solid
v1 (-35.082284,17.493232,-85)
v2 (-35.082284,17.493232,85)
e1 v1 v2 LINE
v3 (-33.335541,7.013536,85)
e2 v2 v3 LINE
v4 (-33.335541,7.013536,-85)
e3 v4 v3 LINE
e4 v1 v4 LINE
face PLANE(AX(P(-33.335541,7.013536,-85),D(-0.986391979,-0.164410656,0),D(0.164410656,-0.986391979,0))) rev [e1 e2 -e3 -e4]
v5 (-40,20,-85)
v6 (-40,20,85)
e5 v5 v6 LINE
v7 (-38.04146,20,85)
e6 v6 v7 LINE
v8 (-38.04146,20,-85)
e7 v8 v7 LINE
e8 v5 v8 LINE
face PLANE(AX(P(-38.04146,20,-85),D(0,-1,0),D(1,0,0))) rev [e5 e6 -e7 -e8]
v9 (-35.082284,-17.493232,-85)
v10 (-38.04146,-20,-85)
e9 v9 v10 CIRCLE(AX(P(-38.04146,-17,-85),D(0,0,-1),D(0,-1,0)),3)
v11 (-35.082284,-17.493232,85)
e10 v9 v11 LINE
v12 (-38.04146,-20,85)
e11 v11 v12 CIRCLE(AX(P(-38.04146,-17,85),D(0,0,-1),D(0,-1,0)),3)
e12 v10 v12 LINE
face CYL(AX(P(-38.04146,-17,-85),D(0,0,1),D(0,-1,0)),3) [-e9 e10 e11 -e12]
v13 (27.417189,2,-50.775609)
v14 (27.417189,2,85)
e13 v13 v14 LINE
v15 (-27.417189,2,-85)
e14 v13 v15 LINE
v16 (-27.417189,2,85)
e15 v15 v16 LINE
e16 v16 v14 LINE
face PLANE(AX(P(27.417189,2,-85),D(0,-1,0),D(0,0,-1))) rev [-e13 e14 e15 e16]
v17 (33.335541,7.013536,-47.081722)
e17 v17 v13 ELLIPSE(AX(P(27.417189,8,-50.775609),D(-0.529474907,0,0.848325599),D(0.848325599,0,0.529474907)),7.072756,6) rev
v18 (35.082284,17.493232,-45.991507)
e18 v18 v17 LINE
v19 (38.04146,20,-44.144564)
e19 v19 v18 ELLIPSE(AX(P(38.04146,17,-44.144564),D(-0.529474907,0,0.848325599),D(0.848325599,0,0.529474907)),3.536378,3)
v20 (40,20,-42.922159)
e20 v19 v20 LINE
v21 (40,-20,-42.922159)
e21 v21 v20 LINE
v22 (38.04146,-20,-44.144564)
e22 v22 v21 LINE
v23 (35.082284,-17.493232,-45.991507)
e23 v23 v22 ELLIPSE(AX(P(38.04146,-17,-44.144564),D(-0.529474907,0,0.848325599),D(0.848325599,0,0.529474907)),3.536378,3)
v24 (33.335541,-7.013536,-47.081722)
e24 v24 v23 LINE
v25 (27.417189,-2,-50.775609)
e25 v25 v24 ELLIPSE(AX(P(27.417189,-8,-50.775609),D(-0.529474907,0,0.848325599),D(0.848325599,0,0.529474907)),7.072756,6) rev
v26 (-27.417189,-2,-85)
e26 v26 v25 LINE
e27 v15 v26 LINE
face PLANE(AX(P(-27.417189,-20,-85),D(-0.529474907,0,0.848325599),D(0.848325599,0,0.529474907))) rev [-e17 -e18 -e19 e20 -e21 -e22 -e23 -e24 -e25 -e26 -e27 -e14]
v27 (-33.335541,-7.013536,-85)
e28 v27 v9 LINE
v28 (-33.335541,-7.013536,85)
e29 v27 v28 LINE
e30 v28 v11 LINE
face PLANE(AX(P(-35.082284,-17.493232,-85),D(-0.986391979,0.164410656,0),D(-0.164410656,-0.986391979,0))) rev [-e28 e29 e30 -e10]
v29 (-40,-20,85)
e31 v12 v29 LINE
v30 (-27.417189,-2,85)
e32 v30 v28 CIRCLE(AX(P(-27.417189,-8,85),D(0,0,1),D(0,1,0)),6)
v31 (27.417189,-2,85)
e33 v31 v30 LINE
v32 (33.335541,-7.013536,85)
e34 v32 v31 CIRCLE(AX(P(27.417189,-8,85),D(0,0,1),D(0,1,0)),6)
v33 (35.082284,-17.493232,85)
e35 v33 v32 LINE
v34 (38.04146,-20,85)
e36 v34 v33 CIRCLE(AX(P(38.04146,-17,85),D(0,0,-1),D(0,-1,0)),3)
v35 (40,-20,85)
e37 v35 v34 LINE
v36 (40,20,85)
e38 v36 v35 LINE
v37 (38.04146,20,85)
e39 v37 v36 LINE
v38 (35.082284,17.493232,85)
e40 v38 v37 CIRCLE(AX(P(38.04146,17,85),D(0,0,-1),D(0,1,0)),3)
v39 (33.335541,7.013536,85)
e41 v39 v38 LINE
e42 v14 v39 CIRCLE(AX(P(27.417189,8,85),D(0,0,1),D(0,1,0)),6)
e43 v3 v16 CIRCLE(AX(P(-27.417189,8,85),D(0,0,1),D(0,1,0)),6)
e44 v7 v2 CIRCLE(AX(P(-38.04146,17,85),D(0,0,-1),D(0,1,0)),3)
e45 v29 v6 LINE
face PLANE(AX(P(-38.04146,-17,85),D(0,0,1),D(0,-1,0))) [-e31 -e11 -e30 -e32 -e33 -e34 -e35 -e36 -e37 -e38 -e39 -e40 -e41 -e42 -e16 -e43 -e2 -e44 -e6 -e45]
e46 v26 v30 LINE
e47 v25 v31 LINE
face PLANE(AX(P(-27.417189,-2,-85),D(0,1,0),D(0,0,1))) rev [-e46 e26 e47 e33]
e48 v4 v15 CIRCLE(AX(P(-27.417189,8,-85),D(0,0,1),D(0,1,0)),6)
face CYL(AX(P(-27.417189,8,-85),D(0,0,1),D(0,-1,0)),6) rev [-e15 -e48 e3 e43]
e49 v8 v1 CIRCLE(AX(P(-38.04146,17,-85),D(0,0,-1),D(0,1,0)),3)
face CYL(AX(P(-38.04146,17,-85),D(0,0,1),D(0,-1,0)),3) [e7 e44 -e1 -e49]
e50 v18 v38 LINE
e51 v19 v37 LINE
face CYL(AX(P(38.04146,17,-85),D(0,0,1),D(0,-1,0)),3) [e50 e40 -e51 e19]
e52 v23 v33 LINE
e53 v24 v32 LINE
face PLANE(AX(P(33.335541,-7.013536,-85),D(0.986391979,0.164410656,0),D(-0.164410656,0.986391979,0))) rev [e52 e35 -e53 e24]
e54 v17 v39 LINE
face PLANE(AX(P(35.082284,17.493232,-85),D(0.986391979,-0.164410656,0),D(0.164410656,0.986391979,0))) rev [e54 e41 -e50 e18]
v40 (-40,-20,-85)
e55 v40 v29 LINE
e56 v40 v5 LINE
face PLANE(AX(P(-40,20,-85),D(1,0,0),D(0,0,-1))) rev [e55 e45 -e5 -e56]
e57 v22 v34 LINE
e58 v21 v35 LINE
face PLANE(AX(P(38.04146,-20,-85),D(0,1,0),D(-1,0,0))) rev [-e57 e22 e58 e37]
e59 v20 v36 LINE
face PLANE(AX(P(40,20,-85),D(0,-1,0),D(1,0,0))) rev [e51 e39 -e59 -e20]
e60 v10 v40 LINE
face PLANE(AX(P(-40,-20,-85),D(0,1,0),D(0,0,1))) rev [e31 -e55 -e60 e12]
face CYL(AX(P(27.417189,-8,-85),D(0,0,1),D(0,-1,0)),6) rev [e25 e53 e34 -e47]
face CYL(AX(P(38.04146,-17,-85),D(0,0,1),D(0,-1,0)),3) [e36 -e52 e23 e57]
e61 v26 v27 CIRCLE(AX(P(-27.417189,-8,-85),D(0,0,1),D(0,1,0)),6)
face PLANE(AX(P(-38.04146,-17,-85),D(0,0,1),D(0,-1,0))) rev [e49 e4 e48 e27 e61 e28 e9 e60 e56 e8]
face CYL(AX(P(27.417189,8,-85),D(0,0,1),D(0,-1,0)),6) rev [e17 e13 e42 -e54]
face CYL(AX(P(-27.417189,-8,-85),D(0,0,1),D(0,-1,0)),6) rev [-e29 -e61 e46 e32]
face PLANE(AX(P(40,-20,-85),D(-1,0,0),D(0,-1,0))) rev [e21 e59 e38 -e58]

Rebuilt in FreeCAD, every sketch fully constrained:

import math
import FreeCAD as App
import Part
import Sketcher
from FreeCAD import Vector
Q = App.Units.Quantity

doc = App.newDocument("Part")
params = doc.addObject("Spreadsheet::Sheet", "Params")
for row, (alias, value) in enumerate([
    ("sketch1_radius", "3 mm"),
    ("sketch1_radius2", "6 mm"),
    ("sketch1_height", "40 mm"),
    ("pad1_length", "170 mm"),
], start=1):
    params.set(f"A{row}", alias)
    params.set(f"B{row}", "=" + value)
    params.setAlias(f"B{row}", alias)

body = doc.addObject("PartDesign::Body", "Body")

# Sketch on XY plane
sketch1 = doc.addObject("Sketcher::SketchObject", "Sketch")
body.addObject(sketch1)
sketch1.AttachmentSupport = (doc.XY_Plane, [""])
sketch1.MapMode = "FlatFace"
sketch1.AttachmentOffset = App.Placement(Vector(0, 0, 85), App.Rotation())
sketch1.addGeometry([
    Part.LineSegment(Vector(-38, -20, 0), Vector(-40, -20, 0)),  # 0
    Part.LineSegment(Vector(-40, -20, 0), Vector(-40, 20, 0)),  # 1
    Part.LineSegment(Vector(-40, 20, 0), Vector(-38, 20, 0)),  # 2
    Part.ArcOfCircle(Part.Circle(Vector(-38, 17, 0), Vector(0, 0, 1), 3), math.radians(9), math.radians(90)),  # 3
    Part.LineSegment(Vector(-35.1, 17.5, 0), Vector(-33.3, 7, 0)),  # 4
    Part.ArcOfCircle(Part.Circle(Vector(-27.4, 8, 0), Vector(0, 0, 1), 6), math.radians(-171), math.radians(-90)),  # 5
    Part.LineSegment(Vector(-27.4, 2, 0), Vector(27.4, 2, 0)),  # 6
    Part.ArcOfCircle(Part.Circle(Vector(27.4, 8, 0), Vector(0, 0, 1), 6), math.radians(-90), math.radians(-9)),  # 7
    Part.LineSegment(Vector(33.3, 7, 0), Vector(35.1, 17.5, 0)),  # 8
    Part.ArcOfCircle(Part.Circle(Vector(38, 17, 0), Vector(0, 0, 1), 3), math.radians(90), math.radians(171)),  # 9
    Part.LineSegment(Vector(38, 20, 0), Vector(40, 20, 0)),  # 10
    Part.LineSegment(Vector(40, 20, 0), Vector(40, -20, 0)),  # 11
    Part.LineSegment(Vector(40, -20, 0), Vector(38, -20, 0)),  # 12
    Part.ArcOfCircle(Part.Circle(Vector(38, -17, 0), Vector(0, 0, 1), 3), math.radians(-171), math.radians(-90)),  # 13
    Part.LineSegment(Vector(35.1, -17.5, 0), Vector(33.3, -7, 0)),  # 14
    Part.ArcOfCircle(Part.Circle(Vector(27.4, -8, 0), Vector(0, 0, 1), 6), math.radians(9), math.radians(90)),  # 15
    Part.LineSegment(Vector(27.4, -2, 0), Vector(-27.4, -2, 0)),  # 16
    Part.ArcOfCircle(Part.Circle(Vector(-27.4, -8, 0), Vector(0, 0, 1), 6), math.radians(90), math.radians(171)),  # 17
    Part.LineSegment(Vector(-33.3, -7, 0), Vector(-35.1, -17.5, 0)),  # 18
    Part.ArcOfCircle(Part.Circle(Vector(-38, -17, 0), Vector(0, 0, 1), 3), math.radians(-90), math.radians(-9)),  # 19
], False)
sketch1.addConstraint([
    Sketcher.Constraint("Coincident", 0, 2, 1, 1),
    Sketcher.Constraint("Coincident", 1, 2, 2, 1),
    Sketcher.Constraint("Tangent", 2, 2, 3, 2),
    Sketcher.Constraint("Tangent", 3, 1, 4, 1),
    Sketcher.Constraint("Tangent", 4, 2, 5, 1),
    Sketcher.Constraint("Tangent", 5, 2, 6, 1),
    Sketcher.Constraint("Tangent", 6, 2, 7, 1),
    Sketcher.Constraint("Tangent", 7, 2, 8, 1),
    Sketcher.Constraint("Tangent", 8, 2, 9, 2),
    Sketcher.Constraint("Tangent", 9, 1, 10, 1),
    Sketcher.Constraint("Coincident", 10, 2, 11, 1),
    Sketcher.Constraint("Coincident", 11, 2, 12, 1),
    Sketcher.Constraint("Tangent", 12, 2, 13, 2),
    Sketcher.Constraint("Tangent", 13, 1, 14, 1),
    Sketcher.Constraint("Tangent", 14, 2, 15, 1),
    Sketcher.Constraint("Tangent", 15, 2, 16, 1),
    Sketcher.Constraint("Tangent", 16, 2, 17, 1),
    Sketcher.Constraint("Tangent", 17, 2, 18, 1),
    Sketcher.Constraint("Tangent", 18, 2, 19, 2),
    Sketcher.Constraint("Tangent", 19, 1, 0, 1),
    Sketcher.Constraint("Horizontal", 0),
    Sketcher.Constraint("Vertical", 1),
    Sketcher.Constraint("Horizontal", 2),
    Sketcher.Constraint("Horizontal", 6),
    Sketcher.Constraint("Horizontal", 10),
    Sketcher.Constraint("Vertical", 11),
    Sketcher.Constraint("Horizontal", 12),
    Sketcher.Constraint("Horizontal", 16),
    Sketcher.Constraint("Equal", 5, 7),
    Sketcher.Constraint("Equal", 3, 9),
    Sketcher.Constraint("Equal", 9, 13),
    Sketcher.Constraint("Equal", 7, 15),
    Sketcher.Constraint("Equal", 15, 17),
    Sketcher.Constraint("Equal", 13, 19),
    Sketcher.Constraint("Symmetric", 3, 3, 13, 3, -1, 1),
    Sketcher.Constraint("Symmetric", 5, 3, 15, 3, -1, 1),
    Sketcher.Constraint("Symmetric", 9, 3, 19, 3, -1, 1),
    Sketcher.Constraint("Symmetric", 3, 3, 9, 3, -2),
    Sketcher.Constraint("Parallel", 8, 18),
    Sketcher.Constraint("Horizontal", 4, 2, 7, 2),
    Sketcher.Constraint("Equal", 2, 10),
    Sketcher.Constraint("Radius", 3, 3.0),
    Sketcher.Constraint("Radius", 5, 6.0),
    Sketcher.Constraint("DistanceY", 1, 1, 1, 2, 40.0),
    Sketcher.Constraint("DistanceY", -1, 1, 5, 3, 8.0),
    Sketcher.Constraint("DistanceX", 0, 2, -1, 1, 40.0),
    Sketcher.Constraint("DistanceX", 0, 2, 0, 1, 1.95854),
    Sketcher.Constraint("DistanceX", 6, 1, 6, 2, 54.834378),
])
sketch1.setExpression("Constraints[41]", "Params.sketch1_radius")
sketch1.setExpression("Constraints[42]", "Params.sketch1_radius2")
sketch1.setExpression("Constraints[43]", "Params.sketch1_height")
pad1 = doc.addObject("PartDesign::Pad", "Pad")
body.addObject(pad1)
pad1.Profile = sketch1
pad1.setExpression("Length", "Params.pad1_length")
pad1.Reversed = True

# Sketch on XZ plane
sketch2 = doc.addObject("Sketcher::SketchObject", "Sketch001")
body.addObject(sketch2)
sketch2.AttachmentSupport = (doc.XZ_Plane, [""])
sketch2.MapMode = "FlatFace"
sketch2.addGeometry([
    Part.LineSegment(Vector(-27, -85, 0), Vector(71, -23, 0)),
    Part.LineSegment(Vector(71, -23, 0), Vector(71, -106, 0)),
    Part.LineSegment(Vector(71, -106, 0), Vector(-27, -106, 0)),
    Part.LineSegment(Vector(-27, -106, 0), Vector(-27, -85, 0)),
], False)
sketch2.addConstraint([
    Sketcher.Constraint("Coincident", 0, 2, 1, 1),
    Sketcher.Constraint("Coincident", 1, 2, 2, 1),
    Sketcher.Constraint("Coincident", 2, 2, 3, 1),
    Sketcher.Constraint("Coincident", 3, 2, 0, 1),
    Sketcher.Constraint("Vertical", 1),
    Sketcher.Constraint("Horizontal", 2),
    Sketcher.Constraint("Vertical", 3),
    Sketcher.Constraint("DistanceY", 3, 2, -1, 1, 85.0),
    Sketcher.Constraint("Angle", 0, Q("31.969983 deg")),
    Sketcher.Constraint("DistanceX", 2, 2, 2, 1, 98.688349),
    Sketcher.Constraint("DistanceY", 1, 2, 1, 1, 82.357894),
    Sketcher.Constraint("DistanceX", -1, 1, 0, 2, 71.27116),
])
pocket1 = doc.addObject("PartDesign::Pocket", "Pocket")
body.addObject(pocket1)
pocket1.Profile = sketch2
pocket1.Type = "ThroughAll"
pocket1.Midplane = True

doc.recompute()
